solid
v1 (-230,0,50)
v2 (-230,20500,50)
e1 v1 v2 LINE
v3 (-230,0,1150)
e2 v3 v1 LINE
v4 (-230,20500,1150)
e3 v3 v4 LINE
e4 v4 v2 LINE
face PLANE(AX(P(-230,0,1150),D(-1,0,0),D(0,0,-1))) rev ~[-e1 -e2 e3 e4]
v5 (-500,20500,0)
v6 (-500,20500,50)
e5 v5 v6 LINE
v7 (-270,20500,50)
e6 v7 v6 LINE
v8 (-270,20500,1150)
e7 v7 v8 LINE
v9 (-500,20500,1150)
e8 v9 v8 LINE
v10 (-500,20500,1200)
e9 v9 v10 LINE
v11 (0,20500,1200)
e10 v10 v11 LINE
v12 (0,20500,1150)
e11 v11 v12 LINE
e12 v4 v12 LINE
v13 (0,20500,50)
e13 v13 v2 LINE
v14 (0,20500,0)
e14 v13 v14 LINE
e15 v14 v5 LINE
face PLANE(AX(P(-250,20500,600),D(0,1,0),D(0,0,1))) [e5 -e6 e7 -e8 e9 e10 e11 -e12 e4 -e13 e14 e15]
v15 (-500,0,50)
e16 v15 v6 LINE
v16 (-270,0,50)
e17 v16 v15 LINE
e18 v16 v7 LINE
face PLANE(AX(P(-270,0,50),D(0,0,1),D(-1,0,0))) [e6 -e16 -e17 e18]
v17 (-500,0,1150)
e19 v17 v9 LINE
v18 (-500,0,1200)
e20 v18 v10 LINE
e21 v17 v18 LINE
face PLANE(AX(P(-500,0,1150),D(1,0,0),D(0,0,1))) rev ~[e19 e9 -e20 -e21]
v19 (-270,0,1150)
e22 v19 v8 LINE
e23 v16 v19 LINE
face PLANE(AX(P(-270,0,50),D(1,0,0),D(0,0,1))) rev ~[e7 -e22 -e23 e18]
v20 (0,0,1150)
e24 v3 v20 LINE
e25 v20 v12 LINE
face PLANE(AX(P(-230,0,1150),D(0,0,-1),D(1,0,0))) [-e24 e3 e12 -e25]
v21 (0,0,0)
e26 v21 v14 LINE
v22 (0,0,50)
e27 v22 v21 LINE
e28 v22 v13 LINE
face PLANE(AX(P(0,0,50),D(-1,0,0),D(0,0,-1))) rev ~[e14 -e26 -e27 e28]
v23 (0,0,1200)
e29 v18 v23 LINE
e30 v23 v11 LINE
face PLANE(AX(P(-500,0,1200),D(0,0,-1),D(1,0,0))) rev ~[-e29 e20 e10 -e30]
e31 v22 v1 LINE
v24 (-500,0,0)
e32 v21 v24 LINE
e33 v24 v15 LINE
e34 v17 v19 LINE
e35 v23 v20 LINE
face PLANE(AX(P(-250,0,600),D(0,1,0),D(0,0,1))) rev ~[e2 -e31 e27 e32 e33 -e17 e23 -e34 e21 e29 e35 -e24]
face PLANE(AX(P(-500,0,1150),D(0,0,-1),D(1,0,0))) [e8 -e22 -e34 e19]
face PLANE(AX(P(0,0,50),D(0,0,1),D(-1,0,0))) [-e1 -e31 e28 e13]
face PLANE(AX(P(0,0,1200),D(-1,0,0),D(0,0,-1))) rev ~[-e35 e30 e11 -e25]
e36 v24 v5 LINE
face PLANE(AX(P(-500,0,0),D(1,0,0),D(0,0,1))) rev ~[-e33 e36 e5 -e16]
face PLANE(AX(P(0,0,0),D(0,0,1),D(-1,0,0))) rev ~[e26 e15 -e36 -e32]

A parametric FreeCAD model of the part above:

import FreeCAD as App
import Part
import Sketcher
from FreeCAD import Vector
Q = App.Units.Quantity


def add_polygon(sketch, points):
    """Adds a closed chain of lines whose ends are joined by coincident constraints."""
    first, n = sketch.GeometryCount, len(points)
    for a, b in zip(points, points[1:] + points[:1]):
        sketch.addGeometry(Part.LineSegment(App.Vector(*a, 0), App.Vector(*b, 0)), False)
    for i in range(n):
        sketch.addConstraint(Sketcher.Constraint("Coincident", first + i, 2, first + (i + 1) % n, 1))

doc = App.newDocument("Part")
body = doc.addObject("PartDesign::Body", "Body")

sketch1 = doc.addObject("Sketcher::SketchObject", "Sketch")
body.addObject(sketch1)
sketch1.AttachmentSupport = (doc.XZ_Plane, [""])
sketch1.MapMode = "FlatFace"
add_polygon(sketch1, [(0, 1200), (-500, 1200), (-500, 1150), (-270, 1150), (-270, 50), (-500, 50), (-500, 0), (0, 0), (0, 50), (-230, 50), (-230, 1150), (0, 1150)])
sketch1.addConstraint(Sketcher.Constraint("Horizontal", 0))
sketch1.addConstraint(Sketcher.Constraint("Vertical", 1))
sketch1.addConstraint(Sketcher.Constraint("Horizontal", 2))
sketch1.addConstraint(Sketcher.Constraint("Vertical", 3))
sketch1.addConstraint(Sketcher.Constraint("Horizontal", 4))
sketch1.addConstraint(Sketcher.Constraint("Vertical", 5))
sketch1.addConstraint(Sketcher.Constraint("Horizontal", 6))
sketch1.addConstraint(Sketcher.Constraint("Vertical", 7))
sketch1.addConstraint(Sketcher.Constraint("Horizontal", 8))
sketch1.addConstraint(Sketcher.Constraint("Vertical", 9))
sketch1.addConstraint(Sketcher.Constraint("Horizontal", 10))
sketch1.addConstraint(Sketcher.Constraint("Vertical", 11))
sketch1.addConstraint(Sketcher.Constraint("Coincident", 6, 2, -1, 1))
sketch1.addConstraint(Sketcher.Constraint("PointOnObject", 10, 2, -2))
sketch1.addConstraint(Sketcher.Constraint("Horizontal", 4, 2, 7, 2))
sketch1.addConstraint(Sketcher.Constraint("Horizontal", 2, 2, 9, 2))
sketch1.addConstraint(Sketcher.Constraint("Vertical", 1, 2, 4, 2))
sketch1.addConstraint(Sketcher.Constraint("Equal", 4, 8))
sketch1.addConstraint(Sketcher.Constraint("Equal", 1, 5))
sketch1.addConstraint(Sketcher.Constraint("DistanceX", 0, 2, 0, 1, Q("500 mm")))
sketch1.addConstraint(Sketcher.Constraint("DistanceX", 2, 1, 2, 2, Q("230 mm")))
sketch1.addConstraint(Sketcher.Constraint("DistanceY", 1, 2, 1, 1, Q("50 mm")))
sketch1.addConstraint(Sketcher.Constraint("DistanceY", 3, 2, 3, 1, Q("1100 mm")))
pad1 = doc.addObject("PartDesign::Pad", "Pad")
body.addObject(pad1)
pad1.Profile = sketch1
pad1.Length = 20500
pad1.Reversed = True

doc.recompute()
